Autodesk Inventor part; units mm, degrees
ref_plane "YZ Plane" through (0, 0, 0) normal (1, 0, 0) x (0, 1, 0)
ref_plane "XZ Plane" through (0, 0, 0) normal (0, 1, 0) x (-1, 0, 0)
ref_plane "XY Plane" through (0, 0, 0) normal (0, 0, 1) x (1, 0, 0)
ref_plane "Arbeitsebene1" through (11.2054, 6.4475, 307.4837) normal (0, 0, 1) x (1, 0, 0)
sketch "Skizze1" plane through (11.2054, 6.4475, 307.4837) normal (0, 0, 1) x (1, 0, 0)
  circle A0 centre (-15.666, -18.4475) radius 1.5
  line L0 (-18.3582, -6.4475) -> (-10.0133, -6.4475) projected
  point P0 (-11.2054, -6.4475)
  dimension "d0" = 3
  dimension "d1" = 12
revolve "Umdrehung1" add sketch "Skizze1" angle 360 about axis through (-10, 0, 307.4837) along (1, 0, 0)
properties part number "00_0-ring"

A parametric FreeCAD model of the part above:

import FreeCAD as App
import Part
import Sketcher

V = App.Vector

doc = App.newDocument("Part")
params = doc.addObject("Spreadsheet::Sheet", "Params")
for row, (alias, value) in enumerate([
    ("sketch1_diameter", "3 mm"),
    ("revolution_angle", "360 deg"),
], start=1):
    params.set(f"A{row}", alias)
    params.set(f"B{row}", "=" + value)
    params.setAlias(f"B{row}", alias)

body = doc.addObject("PartDesign::Body", "Body")

# Sketch on XY plane
sketch1 = body.newObject("Sketcher::SketchObject", "Sketch")
sketch1.AttachmentSupport = (doc.getObject("XY_Plane"), [""])
sketch1.MapMode = "FlatFace"
sketch1.AttachmentOffset = App.Placement(V(0, 0, 307.4837), App.Rotation())
sketch1.addGeometry(Part.Circle(V(-4.5, -12, 0), V(0, 0, 1), 1.5), False)
sketch1.addConstraint([
    Sketcher.Constraint("Diameter", 0, 3.0),
    Sketcher.Constraint("DistanceY", 0, 3, -1, 1, 12.0),
    Sketcher.Constraint("DistanceX", 0, 3, -1, 1, 4.4606),
])
sketch1.setExpression("Constraints[0]", "Params.sketch1_diameter")
revolution = body.newObject("PartDesign::Revolution", "Revolution")
revolution.Profile = sketch1
revolution.ReferenceAxis = (sketch1, ["H_Axis"])
revolution.setExpression("Angle", "Params.revolution_angle")

doc.recompute()
